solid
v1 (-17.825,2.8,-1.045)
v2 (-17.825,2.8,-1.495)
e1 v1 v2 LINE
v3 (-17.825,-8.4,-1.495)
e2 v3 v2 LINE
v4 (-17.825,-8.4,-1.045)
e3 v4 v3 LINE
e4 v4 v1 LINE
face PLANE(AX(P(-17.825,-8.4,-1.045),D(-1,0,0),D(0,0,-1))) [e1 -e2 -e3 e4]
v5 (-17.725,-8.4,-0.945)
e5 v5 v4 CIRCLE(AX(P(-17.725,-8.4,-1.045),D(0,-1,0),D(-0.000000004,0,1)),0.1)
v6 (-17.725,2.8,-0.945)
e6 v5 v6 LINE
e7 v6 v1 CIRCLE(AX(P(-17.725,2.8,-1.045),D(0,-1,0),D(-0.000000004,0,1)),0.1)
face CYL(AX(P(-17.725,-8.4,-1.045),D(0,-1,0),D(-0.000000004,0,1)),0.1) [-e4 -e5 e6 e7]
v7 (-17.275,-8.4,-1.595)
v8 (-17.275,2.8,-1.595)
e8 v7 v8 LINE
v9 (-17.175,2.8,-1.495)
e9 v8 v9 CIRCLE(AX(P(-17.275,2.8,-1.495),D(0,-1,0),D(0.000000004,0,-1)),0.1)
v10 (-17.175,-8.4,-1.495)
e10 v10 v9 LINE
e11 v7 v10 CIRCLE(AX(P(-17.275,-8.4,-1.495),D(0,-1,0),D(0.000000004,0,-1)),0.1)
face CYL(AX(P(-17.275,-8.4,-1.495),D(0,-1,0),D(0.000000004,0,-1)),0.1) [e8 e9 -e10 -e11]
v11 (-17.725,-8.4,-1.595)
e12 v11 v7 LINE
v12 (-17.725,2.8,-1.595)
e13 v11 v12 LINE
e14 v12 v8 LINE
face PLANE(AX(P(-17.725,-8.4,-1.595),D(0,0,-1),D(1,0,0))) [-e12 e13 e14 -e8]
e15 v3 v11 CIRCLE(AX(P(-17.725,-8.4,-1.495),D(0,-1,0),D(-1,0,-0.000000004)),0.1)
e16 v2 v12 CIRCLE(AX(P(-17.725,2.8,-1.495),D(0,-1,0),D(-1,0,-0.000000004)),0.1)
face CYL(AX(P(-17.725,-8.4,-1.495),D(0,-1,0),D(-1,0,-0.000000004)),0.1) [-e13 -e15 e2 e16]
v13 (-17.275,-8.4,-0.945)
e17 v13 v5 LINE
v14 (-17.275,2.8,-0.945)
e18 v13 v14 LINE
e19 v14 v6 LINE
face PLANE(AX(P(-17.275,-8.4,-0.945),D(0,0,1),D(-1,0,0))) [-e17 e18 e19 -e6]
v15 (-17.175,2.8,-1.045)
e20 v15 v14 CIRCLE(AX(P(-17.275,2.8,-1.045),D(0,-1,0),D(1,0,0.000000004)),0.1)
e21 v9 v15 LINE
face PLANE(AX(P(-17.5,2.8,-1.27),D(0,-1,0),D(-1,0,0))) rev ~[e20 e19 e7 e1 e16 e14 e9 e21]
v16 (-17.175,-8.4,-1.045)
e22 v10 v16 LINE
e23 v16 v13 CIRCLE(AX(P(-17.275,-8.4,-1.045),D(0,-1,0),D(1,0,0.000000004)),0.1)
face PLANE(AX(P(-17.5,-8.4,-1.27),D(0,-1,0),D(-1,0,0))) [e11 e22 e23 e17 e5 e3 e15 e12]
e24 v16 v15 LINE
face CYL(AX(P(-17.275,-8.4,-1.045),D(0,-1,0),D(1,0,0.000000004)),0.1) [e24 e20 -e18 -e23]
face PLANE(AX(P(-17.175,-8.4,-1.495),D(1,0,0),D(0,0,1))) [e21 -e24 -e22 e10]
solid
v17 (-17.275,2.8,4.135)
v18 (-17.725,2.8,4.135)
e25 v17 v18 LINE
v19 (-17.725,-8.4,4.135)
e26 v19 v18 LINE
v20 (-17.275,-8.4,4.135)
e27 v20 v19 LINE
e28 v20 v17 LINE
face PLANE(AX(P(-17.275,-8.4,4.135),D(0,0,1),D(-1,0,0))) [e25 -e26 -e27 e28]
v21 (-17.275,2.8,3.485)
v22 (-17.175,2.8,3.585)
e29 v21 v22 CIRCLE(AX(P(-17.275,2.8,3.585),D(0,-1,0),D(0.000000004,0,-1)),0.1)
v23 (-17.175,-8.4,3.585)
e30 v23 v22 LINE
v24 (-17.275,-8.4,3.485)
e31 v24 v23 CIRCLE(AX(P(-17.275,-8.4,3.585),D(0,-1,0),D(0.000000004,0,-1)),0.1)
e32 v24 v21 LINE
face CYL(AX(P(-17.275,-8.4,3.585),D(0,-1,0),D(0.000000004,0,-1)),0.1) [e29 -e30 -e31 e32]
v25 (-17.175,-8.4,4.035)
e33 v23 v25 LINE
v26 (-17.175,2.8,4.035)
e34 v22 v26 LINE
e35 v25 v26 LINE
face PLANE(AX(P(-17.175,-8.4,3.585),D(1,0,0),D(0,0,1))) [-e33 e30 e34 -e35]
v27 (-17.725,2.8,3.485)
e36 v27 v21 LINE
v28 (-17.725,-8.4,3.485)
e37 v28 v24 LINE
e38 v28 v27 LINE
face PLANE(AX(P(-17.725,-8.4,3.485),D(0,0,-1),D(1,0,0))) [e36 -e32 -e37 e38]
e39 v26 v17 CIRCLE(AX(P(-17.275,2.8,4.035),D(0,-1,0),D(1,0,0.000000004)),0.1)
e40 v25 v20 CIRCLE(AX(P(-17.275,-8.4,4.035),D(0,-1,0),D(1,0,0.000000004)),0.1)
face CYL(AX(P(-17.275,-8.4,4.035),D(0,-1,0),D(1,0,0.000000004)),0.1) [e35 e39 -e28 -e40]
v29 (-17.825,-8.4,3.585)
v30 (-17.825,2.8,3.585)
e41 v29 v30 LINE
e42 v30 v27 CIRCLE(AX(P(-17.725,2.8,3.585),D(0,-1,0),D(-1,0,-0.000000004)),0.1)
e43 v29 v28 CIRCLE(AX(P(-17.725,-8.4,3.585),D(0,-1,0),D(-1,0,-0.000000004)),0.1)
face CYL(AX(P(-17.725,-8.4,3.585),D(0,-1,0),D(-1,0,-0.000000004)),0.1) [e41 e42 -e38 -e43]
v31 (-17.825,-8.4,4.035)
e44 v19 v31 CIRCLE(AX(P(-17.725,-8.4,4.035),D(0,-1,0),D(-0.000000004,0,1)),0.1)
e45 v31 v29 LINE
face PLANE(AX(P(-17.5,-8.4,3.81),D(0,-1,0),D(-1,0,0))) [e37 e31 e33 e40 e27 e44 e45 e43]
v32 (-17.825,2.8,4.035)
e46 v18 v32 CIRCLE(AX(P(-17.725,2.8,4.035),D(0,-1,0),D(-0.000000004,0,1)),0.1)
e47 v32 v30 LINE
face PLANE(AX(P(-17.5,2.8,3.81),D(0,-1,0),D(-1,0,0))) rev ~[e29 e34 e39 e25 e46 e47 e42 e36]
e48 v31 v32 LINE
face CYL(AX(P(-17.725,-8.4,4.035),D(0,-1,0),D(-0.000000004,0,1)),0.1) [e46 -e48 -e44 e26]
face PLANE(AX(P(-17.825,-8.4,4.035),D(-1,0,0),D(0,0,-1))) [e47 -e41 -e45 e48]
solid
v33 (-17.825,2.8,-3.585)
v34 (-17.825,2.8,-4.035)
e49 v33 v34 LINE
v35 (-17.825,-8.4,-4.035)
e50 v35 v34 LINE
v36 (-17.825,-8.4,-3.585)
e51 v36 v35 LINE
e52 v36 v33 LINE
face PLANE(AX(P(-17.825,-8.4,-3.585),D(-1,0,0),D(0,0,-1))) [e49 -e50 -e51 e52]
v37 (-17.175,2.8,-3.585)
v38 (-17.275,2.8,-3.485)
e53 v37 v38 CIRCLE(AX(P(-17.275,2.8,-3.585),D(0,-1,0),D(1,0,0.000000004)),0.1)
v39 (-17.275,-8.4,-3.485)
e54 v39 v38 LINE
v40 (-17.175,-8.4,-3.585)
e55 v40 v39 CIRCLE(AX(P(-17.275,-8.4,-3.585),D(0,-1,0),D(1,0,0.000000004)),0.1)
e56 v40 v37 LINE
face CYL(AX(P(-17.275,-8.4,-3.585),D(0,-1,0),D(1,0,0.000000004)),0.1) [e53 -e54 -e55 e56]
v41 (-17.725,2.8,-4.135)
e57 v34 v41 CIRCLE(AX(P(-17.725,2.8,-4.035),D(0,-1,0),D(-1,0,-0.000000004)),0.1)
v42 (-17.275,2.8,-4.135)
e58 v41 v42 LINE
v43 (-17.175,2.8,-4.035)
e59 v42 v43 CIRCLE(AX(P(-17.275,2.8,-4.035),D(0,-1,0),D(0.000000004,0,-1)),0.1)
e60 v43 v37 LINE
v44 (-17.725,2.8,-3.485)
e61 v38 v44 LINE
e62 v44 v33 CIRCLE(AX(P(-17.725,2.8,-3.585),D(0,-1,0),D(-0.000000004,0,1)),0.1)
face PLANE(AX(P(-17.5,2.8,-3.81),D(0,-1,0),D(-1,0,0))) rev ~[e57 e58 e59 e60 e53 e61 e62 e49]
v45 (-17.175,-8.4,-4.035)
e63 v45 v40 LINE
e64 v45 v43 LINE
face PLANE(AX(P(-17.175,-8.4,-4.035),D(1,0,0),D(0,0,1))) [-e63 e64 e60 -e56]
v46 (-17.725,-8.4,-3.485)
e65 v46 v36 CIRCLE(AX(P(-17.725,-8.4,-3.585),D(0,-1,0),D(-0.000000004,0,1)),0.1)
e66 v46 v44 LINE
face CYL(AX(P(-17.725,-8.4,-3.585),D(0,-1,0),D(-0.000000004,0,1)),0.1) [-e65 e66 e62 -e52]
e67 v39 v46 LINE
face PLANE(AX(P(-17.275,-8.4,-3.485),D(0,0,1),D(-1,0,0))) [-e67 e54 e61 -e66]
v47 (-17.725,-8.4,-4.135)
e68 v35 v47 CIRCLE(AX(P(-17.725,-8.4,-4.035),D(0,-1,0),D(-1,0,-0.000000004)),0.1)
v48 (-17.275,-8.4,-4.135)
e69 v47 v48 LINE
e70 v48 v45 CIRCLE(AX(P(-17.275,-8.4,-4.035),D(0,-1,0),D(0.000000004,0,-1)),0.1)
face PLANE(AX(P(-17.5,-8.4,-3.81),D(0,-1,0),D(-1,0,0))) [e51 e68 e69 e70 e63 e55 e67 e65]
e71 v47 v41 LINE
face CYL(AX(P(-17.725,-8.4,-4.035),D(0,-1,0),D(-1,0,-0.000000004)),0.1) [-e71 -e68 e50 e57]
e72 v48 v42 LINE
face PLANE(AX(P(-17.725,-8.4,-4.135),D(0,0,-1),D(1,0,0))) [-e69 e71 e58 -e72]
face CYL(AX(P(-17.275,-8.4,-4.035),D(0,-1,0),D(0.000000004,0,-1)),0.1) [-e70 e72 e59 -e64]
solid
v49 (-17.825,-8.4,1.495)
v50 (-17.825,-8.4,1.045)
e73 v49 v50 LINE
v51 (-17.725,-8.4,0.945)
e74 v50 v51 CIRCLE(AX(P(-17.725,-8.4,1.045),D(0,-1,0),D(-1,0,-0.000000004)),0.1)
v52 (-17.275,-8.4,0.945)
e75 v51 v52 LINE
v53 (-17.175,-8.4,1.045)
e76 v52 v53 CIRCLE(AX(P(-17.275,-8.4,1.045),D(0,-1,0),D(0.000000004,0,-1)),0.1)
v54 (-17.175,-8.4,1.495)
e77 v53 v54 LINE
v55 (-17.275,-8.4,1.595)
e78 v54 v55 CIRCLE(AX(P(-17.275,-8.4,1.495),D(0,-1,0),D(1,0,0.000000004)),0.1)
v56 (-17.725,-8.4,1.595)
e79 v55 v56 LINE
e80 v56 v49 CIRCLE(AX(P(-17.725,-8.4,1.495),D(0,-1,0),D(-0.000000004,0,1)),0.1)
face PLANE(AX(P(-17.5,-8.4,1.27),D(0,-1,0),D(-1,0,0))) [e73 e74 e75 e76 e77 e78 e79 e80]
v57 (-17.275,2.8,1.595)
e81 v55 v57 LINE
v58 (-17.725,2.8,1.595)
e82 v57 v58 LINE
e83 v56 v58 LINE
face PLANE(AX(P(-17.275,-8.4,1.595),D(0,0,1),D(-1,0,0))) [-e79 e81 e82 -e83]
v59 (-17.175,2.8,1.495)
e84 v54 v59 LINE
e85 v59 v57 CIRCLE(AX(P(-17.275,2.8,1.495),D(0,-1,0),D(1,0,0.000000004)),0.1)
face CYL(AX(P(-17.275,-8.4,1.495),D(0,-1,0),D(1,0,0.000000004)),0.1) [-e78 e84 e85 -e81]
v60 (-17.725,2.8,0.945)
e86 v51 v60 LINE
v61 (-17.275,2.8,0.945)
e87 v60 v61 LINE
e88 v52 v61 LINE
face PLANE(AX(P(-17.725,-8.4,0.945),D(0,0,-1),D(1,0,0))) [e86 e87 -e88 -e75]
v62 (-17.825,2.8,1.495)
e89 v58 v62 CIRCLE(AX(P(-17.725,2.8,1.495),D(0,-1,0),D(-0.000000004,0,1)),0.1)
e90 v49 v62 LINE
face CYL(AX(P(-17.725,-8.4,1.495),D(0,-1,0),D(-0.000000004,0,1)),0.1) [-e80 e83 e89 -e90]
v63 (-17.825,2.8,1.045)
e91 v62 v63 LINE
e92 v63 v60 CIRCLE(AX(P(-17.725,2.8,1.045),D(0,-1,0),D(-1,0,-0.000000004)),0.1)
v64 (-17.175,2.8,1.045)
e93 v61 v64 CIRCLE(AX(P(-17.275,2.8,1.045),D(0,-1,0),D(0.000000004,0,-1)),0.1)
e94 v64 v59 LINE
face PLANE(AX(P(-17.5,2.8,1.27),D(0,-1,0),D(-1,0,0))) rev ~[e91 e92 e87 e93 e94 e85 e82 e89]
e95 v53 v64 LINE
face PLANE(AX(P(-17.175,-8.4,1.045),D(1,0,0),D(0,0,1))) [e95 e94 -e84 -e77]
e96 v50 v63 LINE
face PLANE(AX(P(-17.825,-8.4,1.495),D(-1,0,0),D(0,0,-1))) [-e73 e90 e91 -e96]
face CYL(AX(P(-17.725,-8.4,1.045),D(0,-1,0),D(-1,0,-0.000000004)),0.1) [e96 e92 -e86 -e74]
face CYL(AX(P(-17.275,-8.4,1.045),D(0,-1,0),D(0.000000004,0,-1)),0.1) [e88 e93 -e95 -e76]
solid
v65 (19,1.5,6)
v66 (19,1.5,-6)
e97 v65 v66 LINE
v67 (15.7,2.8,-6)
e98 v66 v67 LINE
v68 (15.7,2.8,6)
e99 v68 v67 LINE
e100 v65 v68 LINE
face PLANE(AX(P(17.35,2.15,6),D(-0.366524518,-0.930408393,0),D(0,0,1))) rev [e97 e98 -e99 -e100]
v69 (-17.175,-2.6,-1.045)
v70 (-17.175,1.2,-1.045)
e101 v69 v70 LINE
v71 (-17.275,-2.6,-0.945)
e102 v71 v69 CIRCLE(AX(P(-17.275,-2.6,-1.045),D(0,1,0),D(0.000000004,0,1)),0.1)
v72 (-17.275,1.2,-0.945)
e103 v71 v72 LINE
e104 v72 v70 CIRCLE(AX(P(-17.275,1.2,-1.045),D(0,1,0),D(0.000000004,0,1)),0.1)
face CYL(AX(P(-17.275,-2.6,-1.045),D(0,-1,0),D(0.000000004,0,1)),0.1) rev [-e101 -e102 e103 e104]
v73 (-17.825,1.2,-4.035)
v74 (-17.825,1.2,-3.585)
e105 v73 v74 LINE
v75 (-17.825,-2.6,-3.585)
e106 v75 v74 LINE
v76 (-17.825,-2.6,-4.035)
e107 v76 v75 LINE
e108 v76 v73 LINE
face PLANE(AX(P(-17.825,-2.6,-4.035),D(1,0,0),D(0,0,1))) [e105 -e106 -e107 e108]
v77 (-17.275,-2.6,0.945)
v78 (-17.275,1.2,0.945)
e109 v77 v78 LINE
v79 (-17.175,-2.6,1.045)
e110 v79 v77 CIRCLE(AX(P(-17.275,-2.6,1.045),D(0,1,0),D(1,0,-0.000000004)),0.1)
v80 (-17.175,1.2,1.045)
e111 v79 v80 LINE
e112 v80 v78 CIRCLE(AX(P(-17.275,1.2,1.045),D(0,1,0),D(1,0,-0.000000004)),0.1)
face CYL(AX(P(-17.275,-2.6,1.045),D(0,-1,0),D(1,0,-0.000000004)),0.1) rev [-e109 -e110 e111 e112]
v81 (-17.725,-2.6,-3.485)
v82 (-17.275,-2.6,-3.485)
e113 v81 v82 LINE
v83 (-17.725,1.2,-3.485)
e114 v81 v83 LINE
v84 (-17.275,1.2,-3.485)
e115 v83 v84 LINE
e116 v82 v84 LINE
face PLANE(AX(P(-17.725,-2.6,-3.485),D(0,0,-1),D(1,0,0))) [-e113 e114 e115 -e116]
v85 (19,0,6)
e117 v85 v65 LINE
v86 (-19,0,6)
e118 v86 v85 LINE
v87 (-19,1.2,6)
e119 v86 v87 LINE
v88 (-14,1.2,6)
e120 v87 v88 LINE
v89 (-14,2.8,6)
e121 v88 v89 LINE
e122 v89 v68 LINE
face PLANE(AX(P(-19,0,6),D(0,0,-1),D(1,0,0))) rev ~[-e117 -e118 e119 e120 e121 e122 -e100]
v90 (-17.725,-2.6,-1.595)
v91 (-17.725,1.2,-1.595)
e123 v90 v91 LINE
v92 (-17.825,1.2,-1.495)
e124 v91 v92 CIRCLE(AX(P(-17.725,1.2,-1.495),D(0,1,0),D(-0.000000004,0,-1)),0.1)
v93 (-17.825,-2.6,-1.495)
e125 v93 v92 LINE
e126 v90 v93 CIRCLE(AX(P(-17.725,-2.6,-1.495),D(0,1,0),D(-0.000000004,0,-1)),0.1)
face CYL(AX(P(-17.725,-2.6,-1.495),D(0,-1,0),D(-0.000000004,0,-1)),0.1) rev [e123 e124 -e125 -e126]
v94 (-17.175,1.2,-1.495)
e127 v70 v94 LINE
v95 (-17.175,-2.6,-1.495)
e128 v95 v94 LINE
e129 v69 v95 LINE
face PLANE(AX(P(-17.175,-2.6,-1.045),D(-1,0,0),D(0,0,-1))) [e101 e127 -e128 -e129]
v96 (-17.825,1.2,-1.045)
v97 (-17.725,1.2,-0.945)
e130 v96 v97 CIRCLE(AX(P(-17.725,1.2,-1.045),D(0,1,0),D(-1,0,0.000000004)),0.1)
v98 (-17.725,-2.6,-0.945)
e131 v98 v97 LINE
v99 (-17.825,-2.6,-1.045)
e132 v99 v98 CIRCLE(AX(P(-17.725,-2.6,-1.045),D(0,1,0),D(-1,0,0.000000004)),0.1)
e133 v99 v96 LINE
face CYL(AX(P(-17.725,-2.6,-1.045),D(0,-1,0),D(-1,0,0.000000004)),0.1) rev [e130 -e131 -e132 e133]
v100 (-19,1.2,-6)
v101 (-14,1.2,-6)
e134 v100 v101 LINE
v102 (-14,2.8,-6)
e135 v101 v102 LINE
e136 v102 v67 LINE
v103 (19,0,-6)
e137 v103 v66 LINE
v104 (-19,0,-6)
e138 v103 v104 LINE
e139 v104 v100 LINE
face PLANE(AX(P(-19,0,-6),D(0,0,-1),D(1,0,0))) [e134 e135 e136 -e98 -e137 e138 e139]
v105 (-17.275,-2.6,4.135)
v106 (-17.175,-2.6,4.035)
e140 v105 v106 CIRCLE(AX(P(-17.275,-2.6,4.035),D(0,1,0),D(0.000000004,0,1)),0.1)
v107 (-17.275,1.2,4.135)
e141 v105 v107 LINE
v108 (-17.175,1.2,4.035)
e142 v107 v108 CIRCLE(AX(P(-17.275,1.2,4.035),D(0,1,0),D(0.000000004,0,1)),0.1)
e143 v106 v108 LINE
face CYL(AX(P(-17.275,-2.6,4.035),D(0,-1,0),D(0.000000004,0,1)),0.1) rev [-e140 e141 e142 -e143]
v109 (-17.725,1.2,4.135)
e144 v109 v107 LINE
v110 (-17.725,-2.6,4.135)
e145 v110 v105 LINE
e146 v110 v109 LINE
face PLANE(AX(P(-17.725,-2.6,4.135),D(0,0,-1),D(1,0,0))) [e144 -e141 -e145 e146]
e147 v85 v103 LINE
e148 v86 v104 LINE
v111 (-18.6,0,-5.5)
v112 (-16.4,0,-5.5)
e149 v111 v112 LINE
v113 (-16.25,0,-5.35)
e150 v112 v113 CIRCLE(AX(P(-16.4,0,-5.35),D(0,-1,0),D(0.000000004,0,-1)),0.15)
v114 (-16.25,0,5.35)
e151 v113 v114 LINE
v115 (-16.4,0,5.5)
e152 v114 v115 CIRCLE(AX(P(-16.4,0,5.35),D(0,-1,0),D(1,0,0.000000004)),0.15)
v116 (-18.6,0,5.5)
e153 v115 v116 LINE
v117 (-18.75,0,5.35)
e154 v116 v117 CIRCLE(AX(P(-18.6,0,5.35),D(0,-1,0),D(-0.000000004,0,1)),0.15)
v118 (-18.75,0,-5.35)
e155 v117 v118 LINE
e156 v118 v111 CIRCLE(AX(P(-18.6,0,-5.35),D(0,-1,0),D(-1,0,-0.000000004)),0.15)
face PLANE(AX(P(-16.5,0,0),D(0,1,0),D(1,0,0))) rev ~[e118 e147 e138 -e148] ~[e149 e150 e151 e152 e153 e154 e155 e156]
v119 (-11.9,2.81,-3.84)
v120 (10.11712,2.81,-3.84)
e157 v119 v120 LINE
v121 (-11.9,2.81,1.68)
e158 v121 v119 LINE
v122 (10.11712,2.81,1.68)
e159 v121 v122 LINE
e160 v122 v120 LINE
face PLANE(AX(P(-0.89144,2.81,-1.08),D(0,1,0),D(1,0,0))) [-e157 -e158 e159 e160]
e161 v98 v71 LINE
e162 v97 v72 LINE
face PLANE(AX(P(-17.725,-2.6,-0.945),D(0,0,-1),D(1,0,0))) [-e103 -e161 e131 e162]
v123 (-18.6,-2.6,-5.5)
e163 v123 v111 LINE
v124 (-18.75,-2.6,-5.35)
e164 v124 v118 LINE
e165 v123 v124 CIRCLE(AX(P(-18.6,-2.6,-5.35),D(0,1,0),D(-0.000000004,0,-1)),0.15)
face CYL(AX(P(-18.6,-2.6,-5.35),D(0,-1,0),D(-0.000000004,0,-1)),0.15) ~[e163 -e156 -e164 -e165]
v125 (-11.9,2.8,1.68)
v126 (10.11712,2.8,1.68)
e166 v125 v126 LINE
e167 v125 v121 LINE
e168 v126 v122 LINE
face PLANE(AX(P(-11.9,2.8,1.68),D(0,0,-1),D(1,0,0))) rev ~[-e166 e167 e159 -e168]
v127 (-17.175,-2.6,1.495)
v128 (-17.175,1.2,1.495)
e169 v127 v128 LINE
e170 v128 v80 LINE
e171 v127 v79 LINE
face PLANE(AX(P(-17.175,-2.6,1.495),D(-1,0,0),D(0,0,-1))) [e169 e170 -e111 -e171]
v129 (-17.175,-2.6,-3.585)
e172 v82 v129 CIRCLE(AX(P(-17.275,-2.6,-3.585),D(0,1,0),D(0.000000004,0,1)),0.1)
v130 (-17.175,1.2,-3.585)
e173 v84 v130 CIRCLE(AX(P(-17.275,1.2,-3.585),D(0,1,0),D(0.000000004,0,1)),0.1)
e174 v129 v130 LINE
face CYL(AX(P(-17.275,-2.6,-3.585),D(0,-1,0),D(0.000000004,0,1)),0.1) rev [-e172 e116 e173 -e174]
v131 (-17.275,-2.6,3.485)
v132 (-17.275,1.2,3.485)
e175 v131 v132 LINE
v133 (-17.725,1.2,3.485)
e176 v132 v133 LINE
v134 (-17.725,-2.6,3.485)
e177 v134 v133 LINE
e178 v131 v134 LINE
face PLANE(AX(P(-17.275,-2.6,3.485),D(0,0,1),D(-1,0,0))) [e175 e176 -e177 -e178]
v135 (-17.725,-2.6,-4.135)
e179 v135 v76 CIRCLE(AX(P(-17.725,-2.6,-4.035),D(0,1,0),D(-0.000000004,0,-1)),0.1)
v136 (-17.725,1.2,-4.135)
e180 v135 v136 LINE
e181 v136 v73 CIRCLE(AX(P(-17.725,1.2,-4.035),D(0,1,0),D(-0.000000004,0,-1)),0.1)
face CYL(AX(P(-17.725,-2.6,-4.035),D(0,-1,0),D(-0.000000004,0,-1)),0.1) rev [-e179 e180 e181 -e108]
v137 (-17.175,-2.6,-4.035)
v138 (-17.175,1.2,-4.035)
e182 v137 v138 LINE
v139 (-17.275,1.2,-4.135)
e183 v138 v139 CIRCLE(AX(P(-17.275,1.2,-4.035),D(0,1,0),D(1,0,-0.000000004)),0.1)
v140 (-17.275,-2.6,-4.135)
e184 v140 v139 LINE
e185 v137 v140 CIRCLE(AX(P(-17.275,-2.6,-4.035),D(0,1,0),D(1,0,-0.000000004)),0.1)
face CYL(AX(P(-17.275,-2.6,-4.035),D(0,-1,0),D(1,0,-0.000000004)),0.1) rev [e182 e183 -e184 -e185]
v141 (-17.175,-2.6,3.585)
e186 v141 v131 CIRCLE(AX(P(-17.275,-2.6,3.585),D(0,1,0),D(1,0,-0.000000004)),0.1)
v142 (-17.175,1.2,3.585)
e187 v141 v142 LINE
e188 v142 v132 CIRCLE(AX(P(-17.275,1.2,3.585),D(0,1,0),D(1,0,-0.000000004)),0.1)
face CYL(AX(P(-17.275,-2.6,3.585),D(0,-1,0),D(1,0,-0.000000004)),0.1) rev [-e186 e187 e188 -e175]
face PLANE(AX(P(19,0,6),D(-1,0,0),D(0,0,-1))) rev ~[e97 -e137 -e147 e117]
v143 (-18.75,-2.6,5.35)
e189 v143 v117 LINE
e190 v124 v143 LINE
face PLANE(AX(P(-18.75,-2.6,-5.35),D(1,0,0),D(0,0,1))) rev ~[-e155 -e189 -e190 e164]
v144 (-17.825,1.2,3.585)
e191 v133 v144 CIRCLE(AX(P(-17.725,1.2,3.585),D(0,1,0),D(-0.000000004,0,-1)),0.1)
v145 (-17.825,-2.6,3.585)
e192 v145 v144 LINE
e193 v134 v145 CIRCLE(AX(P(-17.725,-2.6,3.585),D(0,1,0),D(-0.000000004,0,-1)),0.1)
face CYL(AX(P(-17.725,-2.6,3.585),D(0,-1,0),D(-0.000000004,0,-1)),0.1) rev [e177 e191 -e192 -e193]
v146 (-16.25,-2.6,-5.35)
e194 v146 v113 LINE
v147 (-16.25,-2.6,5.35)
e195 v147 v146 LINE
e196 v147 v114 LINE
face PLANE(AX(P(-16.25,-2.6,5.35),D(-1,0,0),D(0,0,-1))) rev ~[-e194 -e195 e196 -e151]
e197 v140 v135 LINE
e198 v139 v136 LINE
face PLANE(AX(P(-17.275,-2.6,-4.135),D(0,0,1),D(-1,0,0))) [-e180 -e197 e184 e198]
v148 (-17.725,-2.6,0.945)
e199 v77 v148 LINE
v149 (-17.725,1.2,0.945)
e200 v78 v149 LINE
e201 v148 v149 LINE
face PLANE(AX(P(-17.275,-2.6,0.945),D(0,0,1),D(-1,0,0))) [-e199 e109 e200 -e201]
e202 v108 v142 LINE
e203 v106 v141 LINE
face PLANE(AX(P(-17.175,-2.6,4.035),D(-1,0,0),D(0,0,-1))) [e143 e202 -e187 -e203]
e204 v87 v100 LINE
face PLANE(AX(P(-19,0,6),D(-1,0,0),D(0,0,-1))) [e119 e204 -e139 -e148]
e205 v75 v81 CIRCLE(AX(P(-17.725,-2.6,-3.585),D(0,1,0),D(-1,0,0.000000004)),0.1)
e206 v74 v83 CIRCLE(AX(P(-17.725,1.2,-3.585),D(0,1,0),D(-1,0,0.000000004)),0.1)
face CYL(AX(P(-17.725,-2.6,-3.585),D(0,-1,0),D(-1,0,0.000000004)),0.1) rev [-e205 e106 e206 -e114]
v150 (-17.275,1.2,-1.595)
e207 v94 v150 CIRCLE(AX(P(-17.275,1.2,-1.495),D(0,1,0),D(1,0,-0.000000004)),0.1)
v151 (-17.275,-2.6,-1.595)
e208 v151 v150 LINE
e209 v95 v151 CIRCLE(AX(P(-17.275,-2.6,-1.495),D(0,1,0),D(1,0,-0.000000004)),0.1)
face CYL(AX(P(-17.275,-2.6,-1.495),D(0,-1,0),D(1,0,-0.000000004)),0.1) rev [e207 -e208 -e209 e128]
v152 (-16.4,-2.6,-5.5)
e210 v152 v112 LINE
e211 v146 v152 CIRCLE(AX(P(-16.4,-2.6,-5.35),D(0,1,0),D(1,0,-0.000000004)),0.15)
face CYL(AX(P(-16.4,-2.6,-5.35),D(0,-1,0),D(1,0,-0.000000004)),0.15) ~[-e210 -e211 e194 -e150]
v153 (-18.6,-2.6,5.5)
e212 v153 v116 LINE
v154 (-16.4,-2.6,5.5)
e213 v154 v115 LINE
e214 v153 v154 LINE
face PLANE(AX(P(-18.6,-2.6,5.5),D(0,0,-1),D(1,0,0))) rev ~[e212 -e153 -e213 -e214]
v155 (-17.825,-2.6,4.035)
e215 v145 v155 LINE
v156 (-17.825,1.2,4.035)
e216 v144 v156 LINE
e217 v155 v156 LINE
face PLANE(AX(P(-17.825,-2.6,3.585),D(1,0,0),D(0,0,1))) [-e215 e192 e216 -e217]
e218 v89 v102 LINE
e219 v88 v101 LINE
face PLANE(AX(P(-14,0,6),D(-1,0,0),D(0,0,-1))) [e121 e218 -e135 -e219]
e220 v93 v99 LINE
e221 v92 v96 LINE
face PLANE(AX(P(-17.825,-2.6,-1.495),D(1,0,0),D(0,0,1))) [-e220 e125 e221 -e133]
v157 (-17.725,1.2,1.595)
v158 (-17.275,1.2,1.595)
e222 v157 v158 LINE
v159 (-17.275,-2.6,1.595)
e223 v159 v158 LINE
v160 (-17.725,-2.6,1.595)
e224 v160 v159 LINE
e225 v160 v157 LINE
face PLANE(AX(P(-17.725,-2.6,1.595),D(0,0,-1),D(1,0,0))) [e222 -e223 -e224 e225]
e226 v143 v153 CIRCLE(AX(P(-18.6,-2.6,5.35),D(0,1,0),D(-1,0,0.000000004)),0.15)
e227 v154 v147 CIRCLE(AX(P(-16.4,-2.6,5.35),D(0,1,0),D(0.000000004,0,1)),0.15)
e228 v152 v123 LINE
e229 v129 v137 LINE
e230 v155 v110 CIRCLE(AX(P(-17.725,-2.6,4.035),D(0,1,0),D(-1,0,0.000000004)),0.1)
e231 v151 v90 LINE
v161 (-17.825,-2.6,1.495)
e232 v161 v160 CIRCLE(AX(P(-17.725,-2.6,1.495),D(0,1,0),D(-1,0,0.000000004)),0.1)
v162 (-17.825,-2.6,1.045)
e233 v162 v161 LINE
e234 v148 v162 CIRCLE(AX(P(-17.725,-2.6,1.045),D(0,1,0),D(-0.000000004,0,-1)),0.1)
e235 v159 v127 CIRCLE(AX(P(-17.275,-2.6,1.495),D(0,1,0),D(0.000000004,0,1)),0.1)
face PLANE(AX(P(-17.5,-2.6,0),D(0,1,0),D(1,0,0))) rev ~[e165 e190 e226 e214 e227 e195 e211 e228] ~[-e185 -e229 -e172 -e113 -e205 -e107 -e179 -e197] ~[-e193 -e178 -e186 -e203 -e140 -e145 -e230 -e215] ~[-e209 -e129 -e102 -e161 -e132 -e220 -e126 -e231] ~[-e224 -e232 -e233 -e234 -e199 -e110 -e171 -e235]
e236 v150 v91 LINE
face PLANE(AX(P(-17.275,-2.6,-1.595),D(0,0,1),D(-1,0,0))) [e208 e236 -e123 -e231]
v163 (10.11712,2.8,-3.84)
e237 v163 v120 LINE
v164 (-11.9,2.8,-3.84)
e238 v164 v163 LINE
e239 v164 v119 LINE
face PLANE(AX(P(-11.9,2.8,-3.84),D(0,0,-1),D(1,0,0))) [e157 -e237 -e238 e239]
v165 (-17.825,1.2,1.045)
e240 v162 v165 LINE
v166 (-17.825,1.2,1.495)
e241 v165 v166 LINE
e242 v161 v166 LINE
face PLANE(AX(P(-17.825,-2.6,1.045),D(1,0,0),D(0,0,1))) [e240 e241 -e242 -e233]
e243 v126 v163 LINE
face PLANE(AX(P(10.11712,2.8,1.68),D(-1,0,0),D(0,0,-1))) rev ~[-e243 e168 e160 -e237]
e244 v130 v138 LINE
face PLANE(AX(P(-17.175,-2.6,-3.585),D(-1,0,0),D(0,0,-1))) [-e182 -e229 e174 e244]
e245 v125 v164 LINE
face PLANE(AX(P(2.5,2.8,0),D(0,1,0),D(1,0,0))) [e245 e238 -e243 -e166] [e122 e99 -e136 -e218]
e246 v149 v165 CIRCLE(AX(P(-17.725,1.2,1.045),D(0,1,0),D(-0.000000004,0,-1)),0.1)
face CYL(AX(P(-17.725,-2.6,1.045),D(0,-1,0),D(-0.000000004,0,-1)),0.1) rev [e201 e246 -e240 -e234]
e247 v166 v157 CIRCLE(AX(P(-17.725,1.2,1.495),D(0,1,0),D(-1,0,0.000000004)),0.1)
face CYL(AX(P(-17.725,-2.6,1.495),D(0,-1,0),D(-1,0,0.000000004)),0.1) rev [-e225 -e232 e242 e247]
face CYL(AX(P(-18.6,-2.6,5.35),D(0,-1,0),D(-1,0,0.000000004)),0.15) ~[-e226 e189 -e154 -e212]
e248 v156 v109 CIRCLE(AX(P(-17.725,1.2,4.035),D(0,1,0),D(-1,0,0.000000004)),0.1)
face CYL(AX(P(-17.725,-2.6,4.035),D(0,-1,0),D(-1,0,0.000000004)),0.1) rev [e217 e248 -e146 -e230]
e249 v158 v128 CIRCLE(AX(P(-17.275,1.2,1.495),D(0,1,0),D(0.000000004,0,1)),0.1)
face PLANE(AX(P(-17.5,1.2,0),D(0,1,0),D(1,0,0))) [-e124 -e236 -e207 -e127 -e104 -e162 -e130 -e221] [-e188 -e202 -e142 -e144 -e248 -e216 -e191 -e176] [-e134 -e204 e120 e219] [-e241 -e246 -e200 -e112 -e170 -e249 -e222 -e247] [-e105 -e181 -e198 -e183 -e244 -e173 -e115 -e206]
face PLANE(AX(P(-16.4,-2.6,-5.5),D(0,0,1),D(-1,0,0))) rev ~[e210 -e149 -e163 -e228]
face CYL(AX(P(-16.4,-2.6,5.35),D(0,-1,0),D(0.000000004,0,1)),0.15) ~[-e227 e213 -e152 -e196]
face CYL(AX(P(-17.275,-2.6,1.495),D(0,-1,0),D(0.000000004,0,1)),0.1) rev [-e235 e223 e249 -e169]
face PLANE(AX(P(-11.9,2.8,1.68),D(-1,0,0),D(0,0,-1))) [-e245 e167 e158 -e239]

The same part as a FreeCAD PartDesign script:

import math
import FreeCAD as App
import Part
import Sketcher
Q = App.Units.Quantity


def edges_at(feature, points):
    """Names of the edges that pass closest to the given points."""
    edges = feature.Shape.Edges
    near = lambda p: min(range(len(edges)), key=lambda i: edges[i].distToShape(Part.Vertex(*p))[0])
    return sorted({f"Edge{near(p) + 1}" for p in points})


def add_polygon(sketch, points):
    """Adds a closed chain of lines whose ends are joined by coincident constraints."""
    first, n = sketch.GeometryCount, len(points)
    for a, b in zip(points, points[1:] + points[:1]):
        sketch.addGeometry(Part.LineSegment(App.Vector(*a, 0), App.Vector(*b, 0)), False)
    for i in range(n):
        sketch.addConstraint(Sketcher.Constraint("Coincident", first + i, 2, first + (i + 1) % n, 1))

doc = App.newDocument("Part")
body = doc.addObject("PartDesign::Body", "Body")

# Sketch on XZ plane
sketch1 = body.newObject("Sketcher::SketchObject", "Sketch")
sketch1.AttachmentSupport = (doc.getObject("XZ_Plane"), [""])
sketch1.MapMode = "FlatFace"
add_polygon(sketch1, [(-14, -6), (-14, 6), (19, 6), (19, -6)])  # lines 0-3
sketch1.addConstraint([
    Sketcher.Constraint("Vertical", 0),
    Sketcher.Constraint("Horizontal", 1),
    Sketcher.Constraint("Vertical", 2),
    Sketcher.Constraint("Horizontal", 3),
    Sketcher.Constraint("DistanceX", 1, 1, 1, 2, Q("33 mm")),
    Sketcher.Constraint("DistanceY", 0, 1, 0, 2, Q("12 mm")),
    Sketcher.Constraint("DistanceX", 0, 2, -1, 1, Q("14 mm")),
    Sketcher.Constraint("DistanceY", -1, 1, 0, 2, Q("6 mm")),
])
pad1 = body.newObject("PartDesign::Pad", "Pad")
pad1.Profile = sketch1
pad1.Length = 2.8
pad1.Reversed = True

# Sketch on XZ plane
sketch2 = body.newObject("Sketcher::SketchObject", "Sketch001")
sketch2.AttachmentSupport = (doc.getObject("XZ_Plane"), [""])
sketch2.MapMode = "FlatFace"
add_polygon(sketch2, [(-19, -6), (-19, 6), (-14, 6), (-14, -6)])  # lines 0-3
sketch2.addGeometry(Part.LineSegment(App.Vector(-16.25, -5.35, 0), App.Vector(-16.25, 5.35, 0)), False)  # 4
sketch2.addGeometry(Part.ArcOfCircle(Part.Circle(App.Vector(-16.4, 5.35, 0), App.Vector(0, 0, 1), 0.15), math.radians(0), math.radians(90)), False)  # 5
sketch2.addGeometry(Part.LineSegment(App.Vector(-16.4, 5.5, 0), App.Vector(-18.6, 5.5, 0)), False)  # 6
sketch2.addGeometry(Part.ArcOfCircle(Part.Circle(App.Vector(-18.6, 5.35, 0), App.Vector(0, 0, 1), 0.15), math.radians(90), math.radians(180)), False)  # 7
sketch2.addGeometry(Part.LineSegment(App.Vector(-18.75, 5.35, 0), App.Vector(-18.75, -5.35, 0)), False)  # 8
sketch2.addGeometry(Part.ArcOfCircle(Part.Circle(App.Vector(-18.6, -5.35, 0), App.Vector(0, 0, 1), 0.15), math.radians(-180), math.radians(-90)), False)  # 9
sketch2.addGeometry(Part.LineSegment(App.Vector(-18.6, -5.5, 0), App.Vector(-16.4, -5.5, 0)), False)  # 10
sketch2.addGeometry(Part.ArcOfCircle(Part.Circle(App.Vector(-16.4, -5.35, 0), App.Vector(0, 0, 1), 0.15), math.radians(-90), math.radians(0)), False)  # 11
sketch2.addConstraint([
    Sketcher.Constraint("Tangent", 4, 2, 5, 1),
    Sketcher.Constraint("Tangent", 5, 2, 6, 1),
    Sketcher.Constraint("Tangent", 6, 2, 7, 1),
    Sketcher.Constraint("Tangent", 7, 2, 8, 1),
    Sketcher.Constraint("Tangent", 8, 2, 9, 1),
    Sketcher.Constraint("Tangent", 9, 2, 10, 1),
    Sketcher.Constraint("Tangent", 10, 2, 11, 1),
    Sketcher.Constraint("Tangent", 11, 2, 4, 1),
    Sketcher.Constraint("Vertical", 0),
    Sketcher.Constraint("Horizontal", 1),
    Sketcher.Constraint("Vertical", 2),
    Sketcher.Constraint("Horizontal", 3),
    Sketcher.Constraint("Vertical", 4),
    Sketcher.Constraint("Horizontal", 6),
    Sketcher.Constraint("Vertical", 8),
    Sketcher.Constraint("Horizontal", 10),
    Sketcher.Constraint("Equal", 5, 7),
    Sketcher.Constraint("Equal", 7, 9),
    Sketcher.Constraint("Equal", 9, 11),
    Sketcher.Constraint("DistanceX", 1, 1, 1, 2, Q("5 mm")),
    Sketcher.Constraint("DistanceY", 0, 1, 0, 2, Q("12 mm")),
    Sketcher.Constraint("Radius", 5, Q("0.15 mm")),
    Sketcher.Constraint("DistanceX", 6, 2, 6, 1, Q("2.2 mm")),
    Sketcher.Constraint("DistanceY", 4, 1, 4, 2, Q("10.7 mm")),
    Sketcher.Constraint("DistanceX", 0, 2, -1, 1, Q("19 mm")),
    Sketcher.Constraint("DistanceY", -1, 1, 0, 2, Q("6 mm")),
    Sketcher.Constraint("DistanceX", 5, 3, -1, 1, Q("16.4 mm")),
    Sketcher.Constraint("DistanceY", -1, 1, 5, 2, Q("5.5 mm")),
])
pad2 = body.newObject("PartDesign::Pad", "Pad001")
pad2.Profile = sketch2
pad2.Length = 1.2
pad2.Reversed = True

# Sketch on XZ plane
sketch3 = body.newObject("Sketcher::SketchObject", "Sketch002")
sketch3.AttachmentSupport = (doc.getObject("XZ_Plane"), [""])
sketch3.MapMode = "FlatFace"
sketch3.addGeometry([
    Part.LineSegment(App.Vector(-16.25, 5.35, 0), App.Vector(-16.25, -5.35, 0)),  # 0
    Part.ArcOfCircle(Part.Circle(App.Vector(-16.4, -5.35, 0), App.Vector(0, 0, 1), 0.15), math.radians(-90), math.radians(0)),  # 1
    Part.LineSegment(App.Vector(-16.4, -5.5, 0), App.Vector(-18.6, -5.5, 0)),  # 2
    Part.ArcOfCircle(Part.Circle(App.Vector(-18.6, -5.35, 0), App.Vector(0, 0, 1), 0.15), math.radians(-180), math.radians(-90)),  # 3
    Part.LineSegment(App.Vector(-18.75, -5.35, 0), App.Vector(-18.75, 5.35, 0)),  # 4
    Part.ArcOfCircle(Part.Circle(App.Vector(-18.6, 5.35, 0), App.Vector(0, 0, 1), 0.15), math.radians(90), math.radians(180)),  # 5
    Part.LineSegment(App.Vector(-18.6, 5.5, 0), App.Vector(-16.4, 5.5, 0)),  # 6
    Part.ArcOfCircle(Part.Circle(App.Vector(-16.4, 5.35, 0), App.Vector(0, 0, 1), 0.15), math.radians(0), math.radians(90)),  # 7
    Part.ArcOfCircle(Part.Circle(App.Vector(-17.725, 3.585, 0), App.Vector(0, 0, 1), 0.1), math.radians(180), math.radians(270)),  # 8
    Part.LineSegment(App.Vector(-17.725, 3.485, 0), App.Vector(-17.275, 3.485, 0)),  # 9
    Part.ArcOfCircle(Part.Circle(App.Vector(-17.275, 3.585, 0), App.Vector(0, 0, 1), 0.1), math.radians(-90), math.radians(0)),  # 10
    Part.LineSegment(App.Vector(-17.175, 3.585, 0), App.Vector(-17.175, 4.035, 0)),  # 11
    Part.ArcOfCircle(Part.Circle(App.Vector(-17.275, 4.035, 0), App.Vector(0, 0, 1), 0.1), math.radians(0), math.radians(90)),  # 12
    Part.LineSegment(App.Vector(-17.275, 4.135, 0), App.Vector(-17.725, 4.135, 0)),  # 13
    Part.ArcOfCircle(Part.Circle(App.Vector(-17.725, 4.035, 0), App.Vector(0, 0, 1), 0.1), math.radians(90), math.radians(180)),  # 14
    Part.LineSegment(App.Vector(-17.825, 4.035, 0), App.Vector(-17.825, 3.585, 0)),  # 15
    Part.ArcOfCircle(Part.Circle(App.Vector(-17.725, 1.045, 0), App.Vector(0, 0, 1), 0.1), math.radians(180), math.radians(270)),  # 16
    Part.LineSegment(App.Vector(-17.725, 0.945, 0), App.Vector(-17.275, 0.945, 0)),  # 17
    Part.ArcOfCircle(Part.Circle(App.Vector(-17.275, 1.045, 0), App.Vector(0, 0, 1), 0.1), math.radians(-90), math.radians(0)),  # 18
    Part.LineSegment(App.Vector(-17.175, 1.045, 0), App.Vector(-17.175, 1.495, 0)),  # 19
    Part.ArcOfCircle(Part.Circle(App.Vector(-17.275, 1.495, 0), App.Vector(0, 0, 1), 0.1), math.radians(0), math.radians(90)),  # 20
    Part.LineSegment(App.Vector(-17.275, 1.595, 0), App.Vector(-17.725, 1.595, 0)),  # 21
    Part.ArcOfCircle(Part.Circle(App.Vector(-17.725, 1.495, 0), App.Vector(0, 0, 1), 0.1), math.radians(90), math.radians(180)),  # 22
    Part.LineSegment(App.Vector(-17.825, 1.495, 0), App.Vector(-17.825, 1.045, 0)),  # 23
    Part.ArcOfCircle(Part.Circle(App.Vector(-17.725, -1.495, 0), App.Vector(0, 0, 1), 0.1), math.radians(180), math.radians(270)),  # 24
    Part.LineSegment(App.Vector(-17.725, -1.595, 0), App.Vector(-17.275, -1.595, 0)),  # 25
    Part.ArcOfCircle(Part.Circle(App.Vector(-17.275, -1.495, 0), App.Vector(0, 0, 1), 0.1), math.radians(-90), math.radians(0)),  # 26
    Part.LineSegment(App.Vector(-17.175, -1.495, 0), App.Vector(-17.175, -1.045, 0)),  # 27
    Part.ArcOfCircle(Part.Circle(App.Vector(-17.275, -1.045, 0), App.Vector(0, 0, 1), 0.1), math.radians(0), math.radians(90)),  # 28
    Part.LineSegment(App.Vector(-17.275, -0.945, 0), App.Vector(-17.725, -0.945, 0)),  # 29
    Part.ArcOfCircle(Part.Circle(App.Vector(-17.725, -1.045, 0), App.Vector(0, 0, 1), 0.1), math.radians(90), math.radians(180)),  # 30
    Part.LineSegment(App.Vector(-17.825, -1.045, 0), App.Vector(-17.825, -1.495, 0)),  # 31
    Part.ArcOfCircle(Part.Circle(App.Vector(-17.725, -4.035, 0), App.Vector(0, 0, 1), 0.1), math.radians(180), math.radians(270)),  # 32
    Part.LineSegment(App.Vector(-17.725, -4.135, 0), App.Vector(-17.275, -4.135, 0)),  # 33
    Part.ArcOfCircle(Part.Circle(App.Vector(-17.275, -4.035, 0), App.Vector(0, 0, 1), 0.1), math.radians(-90), math.radians(0)),  # 34
    Part.LineSegment(App.Vector(-17.175, -4.035, 0), App.Vector(-17.175, -3.585, 0)),  # 35
    Part.ArcOfCircle(Part.Circle(App.Vector(-17.275, -3.585, 0), App.Vector(0, 0, 1), 0.1), math.radians(0), math.radians(90)),  # 36
    Part.LineSegment(App.Vector(-17.275, -3.485, 0), App.Vector(-17.725, -3.485, 0)),  # 37
    Part.ArcOfCircle(Part.Circle(App.Vector(-17.725, -3.585, 0), App.Vector(0, 0, 1), 0.1), math.radians(90), math.radians(180)),  # 38
    Part.LineSegment(App.Vector(-17.825, -3.585, 0), App.Vector(-17.825, -4.035, 0)),  # 39
], False)
sketch3.addConstraint([
    Sketcher.Constraint("Tangent", 0, 2, 1, 2),
    Sketcher.Constraint("Tangent", 1, 1, 2, 1),
    Sketcher.Constraint("Tangent", 2, 2, 3, 2),
    Sketcher.Constraint("Tangent", 3, 1, 4, 1),
    Sketcher.Constraint("Tangent", 4, 2, 5, 2),
    Sketcher.Constraint("Tangent", 5, 1, 6, 1),
    Sketcher.Constraint("Tangent", 6, 2, 7, 2),
    Sketcher.Constraint("Tangent", 7, 1, 0, 1),
    Sketcher.Constraint("Tangent", 8, 2, 9, 1),
    Sketcher.Constraint("Tangent", 9, 2, 10, 1),
    Sketcher.Constraint("Tangent", 10, 2, 11, 1),
    Sketcher.Constraint("Tangent", 11, 2, 12, 1),
    Sketcher.Constraint("Tangent", 12, 2, 13, 1),
    Sketcher.Constraint("Tangent", 13, 2, 14, 1),
    Sketcher.Constraint("Tangent", 14, 2, 15, 1),
    Sketcher.Constraint("Tangent", 15, 2, 8, 1),
    Sketcher.Constraint("Tangent", 16, 2, 17, 1),
    Sketcher.Constraint("Tangent", 17, 2, 18, 1),
    Sketcher.Constraint("Tangent", 18, 2, 19, 1),
    Sketcher.Constraint("Tangent", 19, 2, 20, 1),
    Sketcher.Constraint("Tangent", 20, 2, 21, 1),
    Sketcher.Constraint("Tangent", 21, 2, 22, 1),
    Sketcher.Constraint("Tangent", 22, 2, 23, 1),
    Sketcher.Constraint("Tangent", 23, 2, 16, 1),
    Sketcher.Constraint("Tangent", 24, 2, 25, 1),
    Sketcher.Constraint("Tangent", 25, 2, 26, 1),
    Sketcher.Constraint("Tangent", 26, 2, 27, 1),
    Sketcher.Constraint("Tangent", 27, 2, 28, 1),
    Sketcher.Constraint("Tangent", 28, 2, 29, 1),
    Sketcher.Constraint("Tangent", 29, 2, 30, 1),
    Sketcher.Constraint("Tangent", 30, 2, 31, 1),
    Sketcher.Constraint("Tangent", 31, 2, 24, 1),
    Sketcher.Constraint("Tangent", 32, 2, 33, 1),
    Sketcher.Constraint("Tangent", 33, 2, 34, 1),
    Sketcher.Constraint("Tangent", 34, 2, 35, 1),
    Sketcher.Constraint("Tangent", 35, 2, 36, 1),
    Sketcher.Constraint("Tangent", 36, 2, 37, 1),
    Sketcher.Constraint("Tangent", 37, 2, 38, 1),
    Sketcher.Constraint("Tangent", 38, 2, 39, 1),
    Sketcher.Constraint("Tangent", 39, 2, 32, 1),
    Sketcher.Constraint("Vertical", 0),
    Sketcher.Constraint("Horizontal", 2),
    Sketcher.Constraint("Vertical", 4),
    Sketcher.Constraint("Horizontal", 6),
    Sketcher.Constraint("Horizontal", 9),
    Sketcher.Constraint("Vertical", 11),
    Sketcher.Constraint("Horizontal", 13),
    Sketcher.Constraint("Vertical", 15),
    Sketcher.Constraint("Horizontal", 17),
    Sketcher.Constraint("Vertical", 19),
    Sketcher.Constraint("Horizontal", 21),
    Sketcher.Constraint("Vertical", 23),
    Sketcher.Constraint("Horizontal", 25),
    Sketcher.Constraint("Vertical", 27),
    Sketcher.Constraint("Horizontal", 29),
    Sketcher.Constraint("Vertical", 31),
    Sketcher.Constraint("Horizontal", 33),
    Sketcher.Constraint("Vertical", 35),
    Sketcher.Constraint("Horizontal", 37),
    Sketcher.Constraint("Vertical", 39),
    Sketcher.Constraint("Equal", 1, 3),
    Sketcher.Constraint("Equal", 3, 5),
    Sketcher.Constraint("Equal", 5, 7),
    Sketcher.Constraint("Equal", 8, 10),
    Sketcher.Constraint("Equal", 10, 12),
    Sketcher.Constraint("Equal", 12, 14),
    Sketcher.Constraint("Equal", 14, 16),
    Sketcher.Constraint("Equal", 16, 18),
    Sketcher.Constraint("Equal", 18, 20),
    Sketcher.Constraint("Equal", 20, 22),
    Sketcher.Constraint("Equal", 22, 24),
    Sketcher.Constraint("Equal", 24, 26),
    Sketcher.Constraint("Equal", 26, 28),
    Sketcher.Constraint("Equal", 28, 30),
    Sketcher.Constraint("Equal", 30, 32),
    Sketcher.Constraint("Equal", 32, 34),
    Sketcher.Constraint("Equal", 34, 36),
    Sketcher.Constraint("Equal", 36, 38),
    Sketcher.Constraint("Symmetric", 22, 3, 24, 3, -1),
    Sketcher.Constraint("Symmetric", 18, 3, 28, 3, -1),
    Sketcher.Constraint("Symmetric", 14, 3, 32, 3, -1),
    Sketcher.Constraint("Symmetric", 10, 3, 36, 3, -1),
    Sketcher.Constraint("Vertical", 14, 3, 16, 3),
    Sketcher.Constraint("Vertical", 12, 3, 18, 3),
    Sketcher.Constraint("Equal", 37, 11),
    Sketcher.Constraint("Equal", 15, 19),
    Sketcher.Constraint("Radius", 8, Q("0.1 mm")),
    Sketcher.Constraint("Radius", 1, Q("0.15 mm")),
    Sketcher.Constraint("DistanceX", 2, 2, 2, 1, Q("2.2 mm")),
    Sketcher.Constraint("DistanceY", 0, 2, 0, 1, Q("10.7 mm")),
    Sketcher.Constraint("DistanceX", 9, 1, 9, 2, Q("0.45 mm")),
    Sketcher.Constraint("DistanceX", 1, 3, -1, 1, Q("16.4 mm")),
    Sketcher.Constraint("DistanceY", 1, 1, -1, 1, Q("5.5 mm")),
    Sketcher.Constraint("DistanceY", 16, 3, 8, 3, Q("2.54 mm")),
    Sketcher.Constraint("DistanceY", 24, 3, 16, 3, Q("2.54 mm")),
    Sketcher.Constraint("DistanceX", 8, 3, -1, 1, Q("17.725 mm")),
])
pad3 = body.newObject("PartDesign::Pad", "Pad002")
pad3.Profile = sketch3
pad3.Type = "TwoLengths"
pad3.Length = 1.2
pad3.Length2 = 2.6
pad3.Reversed = True
doc.recompute()

chamfer = body.newObject("PartDesign::Chamfer", "Chamfer")
chamfer.Base = (pad3, edges_at(pad3, [(19, 2.8, 0)]))
chamfer.ChamferType = "Two distances"
chamfer.Size = 1.3
chamfer.Size2 = 3.3
chamfer.FlipDirection = True

# Sketch on XZ plane
sketch4 = body.newObject("Sketcher::SketchObject", "Sketch003")
sketch4.AttachmentSupport = (doc.getObject("XZ_Plane"), [""])
sketch4.MapMode = "FlatFace"
sketch4.AttachmentOffset = App.Placement(App.Vector(0, 0, -2.8), App.Rotation())
add_polygon(sketch4, [(-11.9, -3.84), (-11.9, 1.68), (10.11712, 1.68), (10.11712, -3.84)])  # lines 0-3
sketch4.addConstraint([
    Sketcher.Constraint("Vertical", 0),
    Sketcher.Constraint("Horizontal", 1),
    Sketcher.Constraint("Vertical", 2),
    Sketcher.Constraint("Horizontal", 3),
    Sketcher.Constraint("DistanceY", 0, 1, 0, 2, Q("5.52 mm")),
    Sketcher.Constraint("DistanceX", 0, 2, -1, 1, Q("11.9 mm")),
    Sketcher.Constraint("DistanceY", -1, 1, 0, 2, Q("1.68 mm")),
    Sketcher.Constraint("DistanceX", 1, 1, 1, 2, Q("22.01712 mm")),
])
pad4 = body.newObject("PartDesign::Pad", "Pad003")
pad4.Profile = sketch4
pad4.Length = 0.01
pad4.Reversed = True
body2 = doc.addObject("PartDesign::Body", "Body001")

# Sketch on XZ plane
sketch5 = body2.newObject("Sketcher::SketchObject", "Sketch004")
sketch5.AttachmentSupport = (doc.getObject("XZ_Plane001"), [""])
sketch5.MapMode = "FlatFace"
sketch5.addGeometry([
    Part.LineSegment(App.Vector(-17.725, -3.485, 0), App.Vector(-17.275, -3.485, 0)),  # 0
    Part.ArcOfCircle(Part.Circle(App.Vector(-17.275, -3.585, 0), App.Vector(0, 0, 1), 0.1), math.radians(0), math.radians(90)),  # 1
    Part.LineSegment(App.Vector(-17.175, -3.585, 0), App.Vector(-17.175, -4.035, 0)),  # 2
    Part.ArcOfCircle(Part.Circle(App.Vector(-17.275, -4.035, 0), App.Vector(0, 0, 1), 0.1), math.radians(-90), math.radians(0)),  # 3
    Part.LineSegment(App.Vector(-17.275, -4.135, 0), App.Vector(-17.725, -4.135, 0)),  # 4
    Part.ArcOfCircle(Part.Circle(App.Vector(-17.725, -4.035, 0), App.Vector(0, 0, 1), 0.1), math.radians(180), math.radians(270)),  # 5
    Part.LineSegment(App.Vector(-17.825, -4.035, 0), App.Vector(-17.825, -3.585, 0)),  # 6
    Part.ArcOfCircle(Part.Circle(App.Vector(-17.725, -3.585, 0), App.Vector(0, 0, 1), 0.1), math.radians(90), math.radians(180)),  # 7
], False)
sketch5.addConstraint([
    Sketcher.Constraint("Tangent", 0, 2, 1, 2),
    Sketcher.Constraint("Tangent", 1, 1, 2, 1),
    Sketcher.Constraint("Tangent", 2, 2, 3, 2),
    Sketcher.Constraint("Tangent", 3, 1, 4, 1),
    Sketcher.Constraint("Tangent", 4, 2, 5, 2),
    Sketcher.Constraint("Tangent", 5, 1, 6, 1),
    Sketcher.Constraint("Tangent", 6, 2, 7, 2),
    Sketcher.Constraint("Tangent", 7, 1, 0, 1),
    Sketcher.Constraint("Horizontal", 0),
    Sketcher.Constraint("Vertical", 2),
    Sketcher.Constraint("Horizontal", 4),
    Sketcher.Constraint("Vertical", 6),
    Sketcher.Constraint("Equal", 1, 3),
    Sketcher.Constraint("Equal", 3, 5),
    Sketcher.Constraint("Equal", 5, 7),
    Sketcher.Constraint("Equal", 4, 2),
    Sketcher.Constraint("Radius", 1, Q("0.1 mm")),
    Sketcher.Constraint("DistanceX", 0, 1, 0, 2, Q("0.45 mm")),
    Sketcher.Constraint("DistanceX", 1, 3, -1, 1, Q("17.275 mm")),
    Sketcher.Constraint("DistanceY", 1, 3, -1, 1, Q("3.585 mm")),
])
pad5 = body2.newObject("PartDesign::Pad", "Pad004")
pad5.Profile = sketch5
pad5.Type = "TwoLengths"
pad5.Length = 2.8
pad5.Length2 = 8.4
pad5.Reversed = True
body3 = doc.addObject("PartDesign::Body", "Body002")

# Sketch on XZ plane
sketch6 = body3.newObject("Sketcher::SketchObject", "Sketch005")
sketch6.AttachmentSupport = (doc.getObject("XZ_Plane002"), [""])
sketch6.MapMode = "FlatFace"
sketch6.addGeometry([
    Part.LineSegment(App.Vector(-17.725, -0.945, 0), App.Vector(-17.275, -0.945, 0)),  # 0
    Part.ArcOfCircle(Part.Circle(App.Vector(-17.275, -1.045, 0), App.Vector(0, 0, 1), 0.1), math.radians(0), math.radians(90)),  # 1
    Part.LineSegment(App.Vector(-17.175, -1.045, 0), App.Vector(-17.175, -1.495, 0)),  # 2
    Part.ArcOfCircle(Part.Circle(App.Vector(-17.275, -1.495, 0), App.Vector(0, 0, 1), 0.1), math.radians(-90), math.radians(0)),  # 3
    Part.LineSegment(App.Vector(-17.275, -1.595, 0), App.Vector(-17.725, -1.595, 0)),  # 4
    Part.ArcOfCircle(Part.Circle(App.Vector(-17.725, -1.495, 0), App.Vector(0, 0, 1), 0.1), math.radians(180), math.radians(270)),  # 5
    Part.LineSegment(App.Vector(-17.825, -1.495, 0), App.Vector(-17.825, -1.045, 0)),  # 6
    Part.ArcOfCircle(Part.Circle(App.Vector(-17.725, -1.045, 0), App.Vector(0, 0, 1), 0.1), math.radians(90), math.radians(180)),  # 7
], False)
sketch6.addConstraint([
    Sketcher.Constraint("Tangent", 0, 2, 1, 2),
    Sketcher.Constraint("Tangent", 1, 1, 2, 1),
    Sketcher.Constraint("Tangent", 2, 2, 3, 2),
    Sketcher.Constraint("Tangent", 3, 1, 4, 1),
    Sketcher.Constraint("Tangent", 4, 2, 5, 2),
    Sketcher.Constraint("Tangent", 5, 1, 6, 1),
    Sketcher.Constraint("Tangent", 6, 2, 7, 2),
    Sketcher.Constraint("Tangent", 7, 1, 0, 1),
    Sketcher.Constraint("Horizontal", 0),
    Sketcher.Constraint("Vertical", 2),
    Sketcher.Constraint("Horizontal", 4),
    Sketcher.Constraint("Vertical", 6),
    Sketcher.Constraint("Equal", 1, 3),
    Sketcher.Constraint("Equal", 3, 5),
    Sketcher.Constraint("Equal", 5, 7),
    Sketcher.Constraint("Equal", 4, 2),
    Sketcher.Constraint("Radius", 1, Q("0.1 mm")),
    Sketcher.Constraint("DistanceX", 0, 1, 0, 2, Q("0.45 mm")),
    Sketcher.Constraint("DistanceX", 1, 3, -1, 1, Q("17.275 mm")),
    Sketcher.Constraint("DistanceY", 1, 3, -1, 1, Q("1.045 mm")),
])
pad6 = body3.newObject("PartDesign::Pad", "Pad005")
pad6.Profile = sketch6
pad6.Type = "TwoLengths"
pad6.Length = 2.8
pad6.Length2 = 8.4
pad6.Reversed = True
body4 = doc.addObject("PartDesign::Body", "Body003")

# Sketch on XZ plane
sketch7 = body4.newObject("Sketcher::SketchObject", "Sketch006")
sketch7.AttachmentSupport = (doc.getObject("XZ_Plane003"), [""])
sketch7.MapMode = "FlatFace"
sketch7.addGeometry([
    Part.LineSegment(App.Vector(-17.725, 1.595, 0), App.Vector(-17.275, 1.595, 0)),  # 0
    Part.ArcOfCircle(Part.Circle(App.Vector(-17.275, 1.495, 0), App.Vector(0, 0, 1), 0.1), math.radians(0), math.radians(90)),  # 1
    Part.LineSegment(App.Vector(-17.175, 1.495, 0), App.Vector(-17.175, 1.045, 0)),  # 2
    Part.ArcOfCircle(Part.Circle(App.Vector(-17.275, 1.045, 0), App.Vector(0, 0, 1), 0.1), math.radians(-90), math.radians(0)),  # 3
    Part.LineSegment(App.Vector(-17.275, 0.945, 0), App.Vector(-17.725, 0.945, 0)),  # 4
    Part.ArcOfCircle(Part.Circle(App.Vector(-17.725, 1.045, 0), App.Vector(0, 0, 1), 0.1), math.radians(180), math.radians(270)),  # 5
    Part.LineSegment(App.Vector(-17.825, 1.045, 0), App.Vector(-17.825, 1.495, 0)),  # 6
    Part.ArcOfCircle(Part.Circle(App.Vector(-17.725, 1.495, 0), App.Vector(0, 0, 1), 0.1), math.radians(90), math.radians(180)),  # 7
], False)
sketch7.addConstraint([
    Sketcher.Constraint("Tangent", 0, 2, 1, 2),
    Sketcher.Constraint("Tangent", 1, 1, 2, 1),
    Sketcher.Constraint("Tangent", 2, 2, 3, 2),
    Sketcher.Constraint("Tangent", 3, 1, 4, 1),
    Sketcher.Constraint("Tangent", 4, 2, 5, 2),
    Sketcher.Constraint("Tangent", 5, 1, 6, 1),
    Sketcher.Constraint("Tangent", 6, 2, 7, 2),
    Sketcher.Constraint("Tangent", 7, 1, 0, 1),
    Sketcher.Constraint("Horizontal", 0),
    Sketcher.Constraint("Vertical", 2),
    Sketcher.Constraint("Horizontal", 4),
    Sketcher.Constraint("Vertical", 6),
    Sketcher.Constraint("Equal", 1, 3),
    Sketcher.Constraint("Equal", 3, 5),
    Sketcher.Constraint("Equal", 5, 7),
    Sketcher.Constraint("Equal", 4, 2),
    Sketcher.Constraint("Radius", 1, Q("0.1 mm")),
    Sketcher.Constraint("DistanceX", 0, 1, 0, 2, Q("0.45 mm")),
    Sketcher.Constraint("DistanceX", 1, 3, -1, 1, Q("17.275 mm")),
    Sketcher.Constraint("DistanceY", -1, 1, 1, 3, Q("1.495 mm")),
])
pad7 = body4.newObject("PartDesign::Pad", "Pad006")
pad7.Profile = sketch7
pad7.Type = "TwoLengths"
pad7.Length = 2.8
pad7.Length2 = 8.4
pad7.Reversed = True
body5 = doc.addObject("PartDesign::Body", "Body004")

# Sketch on XZ plane
sketch8 = body5.newObject("Sketcher::SketchObject", "Sketch007")
sketch8.AttachmentSupport = (doc.getObject("XZ_Plane004"), [""])
sketch8.MapMode = "FlatFace"
sketch8.addGeometry([
    Part.LineSegment(App.Vector(-17.725, 4.135, 0), App.Vector(-17.275, 4.135, 0)),  # 0
    Part.ArcOfCircle(Part.Circle(App.Vector(-17.275, 4.035, 0), App.Vector(0, 0, 1), 0.1), math.radians(0), math.radians(90)),  # 1
    Part.LineSegment(App.Vector(-17.175, 4.035, 0), App.Vector(-17.175, 3.585, 0)),  # 2
    Part.ArcOfCircle(Part.Circle(App.Vector(-17.275, 3.585, 0), App.Vector(0, 0, 1), 0.1), math.radians(-90), math.radians(0)),  # 3
    Part.LineSegment(App.Vector(-17.275, 3.485, 0), App.Vector(-17.725, 3.485, 0)),  # 4
    Part.ArcOfCircle(Part.Circle(App.Vector(-17.725, 3.585, 0), App.Vector(0, 0, 1), 0.1), math.radians(180), math.radians(270)),  # 5
    Part.LineSegment(App.Vector(-17.825, 3.585, 0), App.Vector(-17.825, 4.035, 0)),  # 6
    Part.ArcOfCircle(Part.Circle(App.Vector(-17.725, 4.035, 0), App.Vector(0, 0, 1), 0.1), math.radians(90), math.radians(180)),  # 7
], False)
sketch8.addConstraint([
    Sketcher.Constraint("Tangent", 0, 2, 1, 2),
    Sketcher.Constraint("Tangent", 1, 1, 2, 1),
    Sketcher.Constraint("Tangent", 2, 2, 3, 2),
    Sketcher.Constraint("Tangent", 3, 1, 4, 1),
    Sketcher.Constraint("Tangent", 4, 2, 5, 2),
    Sketcher.Constraint("Tangent", 5, 1, 6, 1),
    Sketcher.Constraint("Tangent", 6, 2, 7, 2),
    Sketcher.Constraint("Tangent", 7, 1, 0, 1),
    Sketcher.Constraint("Horizontal", 0),
    Sketcher.Constraint("Vertical", 2),
    Sketcher.Constraint("Horizontal", 4),
    Sketcher.Constraint("Vertical", 6),
    Sketcher.Constraint("Equal", 1, 3),
    Sketcher.Constraint("Equal", 3, 5),
    Sketcher.Constraint("Equal", 5, 7),
    Sketcher.Constraint("Equal", 4, 2),
    Sketcher.Constraint("Radius", 1, Q("0.1 mm")),
    Sketcher.Constraint("DistanceX", 0, 1, 0, 2, Q("0.45 mm")),
    Sketcher.Constraint("DistanceX", 1, 3, -1, 1, Q("17.275 mm")),
    Sketcher.Constraint("DistanceY", -1, 1, 1, 3, Q("4.035 mm")),
])
pad8 = body5.newObject("PartDesign::Pad", "Pad007")
pad8.Profile = sketch8
pad8.Type = "TwoLengths"
pad8.Length = 2.8
pad8.Length2 = 8.4
pad8.Reversed = True

doc.recompute()
